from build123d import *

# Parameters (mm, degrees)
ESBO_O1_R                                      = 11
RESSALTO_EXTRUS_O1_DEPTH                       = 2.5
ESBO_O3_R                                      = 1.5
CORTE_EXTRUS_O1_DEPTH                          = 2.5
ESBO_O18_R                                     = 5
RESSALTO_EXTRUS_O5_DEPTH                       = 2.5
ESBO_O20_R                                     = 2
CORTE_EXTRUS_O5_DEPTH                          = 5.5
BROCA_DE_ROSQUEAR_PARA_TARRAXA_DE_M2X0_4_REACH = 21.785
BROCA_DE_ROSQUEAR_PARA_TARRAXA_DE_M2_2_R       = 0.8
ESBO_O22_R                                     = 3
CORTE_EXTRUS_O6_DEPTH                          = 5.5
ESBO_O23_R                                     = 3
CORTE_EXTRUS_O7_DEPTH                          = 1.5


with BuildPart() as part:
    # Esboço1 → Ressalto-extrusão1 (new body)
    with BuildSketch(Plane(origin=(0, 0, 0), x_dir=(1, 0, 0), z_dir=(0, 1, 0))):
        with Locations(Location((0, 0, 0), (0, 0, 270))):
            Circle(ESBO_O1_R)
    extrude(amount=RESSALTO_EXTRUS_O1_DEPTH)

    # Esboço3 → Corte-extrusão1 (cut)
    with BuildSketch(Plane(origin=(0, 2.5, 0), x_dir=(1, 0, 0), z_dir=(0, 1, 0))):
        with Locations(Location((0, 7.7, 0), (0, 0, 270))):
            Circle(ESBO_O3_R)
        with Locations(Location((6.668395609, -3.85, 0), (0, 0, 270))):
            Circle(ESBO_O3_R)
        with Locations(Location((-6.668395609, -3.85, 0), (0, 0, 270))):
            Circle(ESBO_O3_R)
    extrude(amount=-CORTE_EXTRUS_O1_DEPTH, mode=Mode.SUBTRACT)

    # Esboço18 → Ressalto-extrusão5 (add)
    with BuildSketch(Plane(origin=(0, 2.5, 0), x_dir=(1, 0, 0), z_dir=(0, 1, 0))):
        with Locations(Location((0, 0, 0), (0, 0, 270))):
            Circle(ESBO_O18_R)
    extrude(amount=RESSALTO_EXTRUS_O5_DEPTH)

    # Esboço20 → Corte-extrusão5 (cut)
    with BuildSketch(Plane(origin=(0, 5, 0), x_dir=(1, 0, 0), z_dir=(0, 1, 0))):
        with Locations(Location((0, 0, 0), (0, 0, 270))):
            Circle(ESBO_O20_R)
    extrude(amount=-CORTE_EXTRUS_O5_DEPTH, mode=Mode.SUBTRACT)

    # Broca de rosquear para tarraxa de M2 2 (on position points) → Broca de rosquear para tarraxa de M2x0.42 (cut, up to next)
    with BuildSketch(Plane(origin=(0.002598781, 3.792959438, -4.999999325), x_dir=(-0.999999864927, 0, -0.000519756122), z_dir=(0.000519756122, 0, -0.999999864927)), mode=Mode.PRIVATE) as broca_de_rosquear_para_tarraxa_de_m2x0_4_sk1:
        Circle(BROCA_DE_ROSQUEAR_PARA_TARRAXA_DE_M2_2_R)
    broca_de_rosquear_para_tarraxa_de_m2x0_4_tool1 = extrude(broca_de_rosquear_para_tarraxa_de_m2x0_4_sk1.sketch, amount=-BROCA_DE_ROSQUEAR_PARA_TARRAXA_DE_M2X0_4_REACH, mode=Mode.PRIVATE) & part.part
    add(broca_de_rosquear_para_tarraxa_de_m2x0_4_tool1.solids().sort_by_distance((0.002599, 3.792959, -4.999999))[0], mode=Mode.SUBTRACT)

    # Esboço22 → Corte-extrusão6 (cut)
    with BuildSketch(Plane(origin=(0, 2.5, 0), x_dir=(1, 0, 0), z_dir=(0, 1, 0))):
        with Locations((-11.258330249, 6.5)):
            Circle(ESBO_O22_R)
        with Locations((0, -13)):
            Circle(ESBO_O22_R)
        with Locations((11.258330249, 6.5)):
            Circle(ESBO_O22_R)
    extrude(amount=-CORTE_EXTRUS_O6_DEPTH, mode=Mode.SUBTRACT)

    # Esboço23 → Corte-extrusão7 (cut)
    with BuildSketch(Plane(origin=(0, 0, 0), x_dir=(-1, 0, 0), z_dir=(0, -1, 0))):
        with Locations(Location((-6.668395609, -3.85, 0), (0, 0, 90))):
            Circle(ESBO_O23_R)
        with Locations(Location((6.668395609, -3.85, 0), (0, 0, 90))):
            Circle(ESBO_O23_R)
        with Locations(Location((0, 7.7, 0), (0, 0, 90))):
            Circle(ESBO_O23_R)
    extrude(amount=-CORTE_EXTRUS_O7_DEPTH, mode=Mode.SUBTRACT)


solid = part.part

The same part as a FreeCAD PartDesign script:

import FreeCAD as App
import Part
import Sketcher
from FreeCAD import Vector

doc = App.newDocument("Part")
body = doc.addObject("PartDesign::Body", "Body")

# Sketch on XZ plane
sketch1 = body.newObject("Sketcher::SketchObject", "Sketch")
sketch1.AttachmentSupport = (doc.getObject("XZ_Plane"), [""])
sketch1.MapMode = "FlatFace"
sketch1.addGeometry(Part.Circle(Vector(0, 0, 0), Vector(0, 0, 1), 11), False)
sketch1.addConstraint([
    Sketcher.Constraint("Coincident", 0, 3, -1, 1),
    Sketcher.Constraint("Diameter", 0, 22.0),
])
pad1 = body.newObject("PartDesign::Pad", "Pad")
pad1.Profile = sketch1
pad1.Length = 2.5
pad1.Reversed = True

# Sketch on XZ plane
sketch2 = body.newObject("Sketcher::SketchObject", "Sketch001")
sketch2.AttachmentSupport = (doc.getObject("XZ_Plane"), [""])
sketch2.MapMode = "FlatFace"
sketch2.AttachmentOffset = App.Placement(Vector(0, 0, -2.5), App.Rotation())
sketch2.addGeometry([
    Part.Circle(Vector(0, -7.7, 0), Vector(0, 0, 1), 1.5),
    Part.Circle(Vector(6.7, 3.9, 0), Vector(0, 0, 1), 1.5),
    Part.Circle(Vector(-6.7, 3.9, 0), Vector(0, 0, 1), 1.5),
], False)
sketch2.addConstraint([
    Sketcher.Constraint("Equal", 0, 1),
    Sketcher.Constraint("Equal", 1, 2),
    Sketcher.Constraint("Symmetric", 1, 3, 2, 3, -2),
    Sketcher.Constraint("PointOnObject", 0, 3, -2),
    Sketcher.Constraint("Diameter", 0, 3.0),
    Sketcher.Constraint("DistanceY", 0, 3, -1, 1, 7.7),
    Sketcher.Constraint("DistanceY", -1, 1, 1, 3, 3.85),
    Sketcher.Constraint("DistanceX", 2, 3, 1, 3, 13.336791),
])
pocket1 = body.newObject("PartDesign::Pocket", "Pocket")
pocket1.Profile = sketch2
pocket1.Length = 2.5
pocket1.Reversed = True

# Sketch on XZ plane
sketch3 = body.newObject("Sketcher::SketchObject", "Sketch002")
sketch3.AttachmentSupport = (doc.getObject("XZ_Plane"), [""])
sketch3.MapMode = "FlatFace"
sketch3.AttachmentOffset = App.Placement(Vector(0, 0, -2.5), App.Rotation())
sketch3.addGeometry(Part.Circle(Vector(0, 0, 0), Vector(0, 0, 1), 5), False)
sketch3.addConstraint([
    Sketcher.Constraint("Coincident", 0, 3, -1, 1),
    Sketcher.Constraint("Diameter", 0, 10.0),
])
pad2 = body.newObject("PartDesign::Pad", "Pad001")
pad2.Profile = sketch3
pad2.Length = 2.5
pad2.Reversed = True

# Sketch on XZ plane
sketch4 = body.newObject("Sketcher::SketchObject", "Sketch003")
sketch4.AttachmentSupport = (doc.getObject("XZ_Plane"), [""])
sketch4.MapMode = "FlatFace"
sketch4.AttachmentOffset = App.Placement(Vector(0, 0, -5), App.Rotation())
sketch4.addGeometry(Part.Circle(Vector(0, 0, 0), Vector(0, 0, 1), 2), False)
sketch4.addConstraint([
    Sketcher.Constraint("Coincident", 0, 3, -1, 1),
    Sketcher.Constraint("Diameter", 0, 4.0),
])
pocket2 = body.newObject("PartDesign::Pocket", "Pocket001")
pocket2.Profile = sketch4
pocket2.Length = 5.5
pocket2.Reversed = True

# Sketch on an angled plane
sketch5 = body.newObject("Sketcher::SketchObject", "Sketch004")
sketch5.Placement = App.Placement(Vector(0.002599, 3.792959, -4.999999), App.Rotation(Vector(-0.999999865, 0, -0.000519756), Vector(0, 1, 0), Vector(0.000519756, 0, -0.999999865), "ZXY"))
sketch5.addGeometry(Part.Circle(Vector(0, 0, 0), Vector(0, 0, 1), 0.8), False)
sketch5.addConstraint([
    Sketcher.Constraint("Coincident", 0, 3, -1, 1),
    Sketcher.Constraint("Diameter", 0, 1.6),
])
pocket3 = body.newObject("PartDesign::Pocket", "Pocket002")
pocket3.Profile = sketch5
pocket3.Type = "UpToFirst"

# Sketch on XZ plane
sketch6 = body.newObject("Sketcher::SketchObject", "Sketch005")
sketch6.AttachmentSupport = (doc.getObject("XZ_Plane"), [""])
sketch6.MapMode = "FlatFace"
sketch6.AttachmentOffset = App.Placement(Vector(0, 0, -2.5), App.Rotation())
sketch6.addGeometry([
    Part.Circle(Vector(-11.3, -6.5, 0), Vector(0, 0, 1), 3),
    Part.Circle(Vector(0, 13, 0), Vector(0, 0, 1), 3),
    Part.Circle(Vector(11.3, -6.5, 0), Vector(0, 0, 1), 3),
], False)
sketch6.addConstraint([
    Sketcher.Constraint("Equal", 0, 1),
    Sketcher.Constraint("Equal", 1, 2),
    Sketcher.Constraint("Symmetric", 0, 3, 2, 3, -2),
    Sketcher.Constraint("PointOnObject", 1, 3, -2),
    Sketcher.Constraint("Diameter", 0, 6.0),
    Sketcher.Constraint("DistanceY", -1, 1, 1, 3, 13.0),
    Sketcher.Constraint("DistanceY", 0, 3, -1, 1, 6.5),
    Sketcher.Constraint("DistanceX", 0, 3, -1, 1, 11.25833),
])
pocket4 = body.newObject("PartDesign::Pocket", "Pocket003")
pocket4.Profile = sketch6
pocket4.Length = 5.5
pocket4.Reversed = True

# Sketch on XZ plane
sketch7 = body.newObject("Sketcher::SketchObject", "Sketch006")
sketch7.AttachmentSupport = (doc.getObject("XZ_Plane"), [""])
sketch7.MapMode = "FlatFace"
sketch7.addGeometry([
    Part.Circle(Vector(6.7, 3.9, 0), Vector(0, 0, 1), 3),
    Part.Circle(Vector(-6.7, 3.9, 0), Vector(0, 0, 1), 3),
    Part.Circle(Vector(0, -7.7, 0), Vector(0, 0, 1), 3),
], False)
sketch7.addConstraint([
    Sketcher.Constraint("Equal", 0, 1),
    Sketcher.Constraint("Equal", 1, 2),
    Sketcher.Constraint("Symmetric", 0, 3, 1, 3, -2),
    Sketcher.Constraint("PointOnObject", 2, 3, -2),
    Sketcher.Constraint("Diameter", 0, 6.0),
    Sketcher.Constraint("DistanceY", 2, 3, -1, 1, 7.7),
    Sketcher.Constraint("DistanceY", -1, 1, 0, 3, 3.85),
    Sketcher.Constraint("DistanceX", 1, 3, 0, 3, 13.336791),
])
pocket5 = body.newObject("PartDesign::Pocket", "Pocket004")
pocket5.Profile = sketch7
pocket5.Length = 1.5

doc.recompute()
